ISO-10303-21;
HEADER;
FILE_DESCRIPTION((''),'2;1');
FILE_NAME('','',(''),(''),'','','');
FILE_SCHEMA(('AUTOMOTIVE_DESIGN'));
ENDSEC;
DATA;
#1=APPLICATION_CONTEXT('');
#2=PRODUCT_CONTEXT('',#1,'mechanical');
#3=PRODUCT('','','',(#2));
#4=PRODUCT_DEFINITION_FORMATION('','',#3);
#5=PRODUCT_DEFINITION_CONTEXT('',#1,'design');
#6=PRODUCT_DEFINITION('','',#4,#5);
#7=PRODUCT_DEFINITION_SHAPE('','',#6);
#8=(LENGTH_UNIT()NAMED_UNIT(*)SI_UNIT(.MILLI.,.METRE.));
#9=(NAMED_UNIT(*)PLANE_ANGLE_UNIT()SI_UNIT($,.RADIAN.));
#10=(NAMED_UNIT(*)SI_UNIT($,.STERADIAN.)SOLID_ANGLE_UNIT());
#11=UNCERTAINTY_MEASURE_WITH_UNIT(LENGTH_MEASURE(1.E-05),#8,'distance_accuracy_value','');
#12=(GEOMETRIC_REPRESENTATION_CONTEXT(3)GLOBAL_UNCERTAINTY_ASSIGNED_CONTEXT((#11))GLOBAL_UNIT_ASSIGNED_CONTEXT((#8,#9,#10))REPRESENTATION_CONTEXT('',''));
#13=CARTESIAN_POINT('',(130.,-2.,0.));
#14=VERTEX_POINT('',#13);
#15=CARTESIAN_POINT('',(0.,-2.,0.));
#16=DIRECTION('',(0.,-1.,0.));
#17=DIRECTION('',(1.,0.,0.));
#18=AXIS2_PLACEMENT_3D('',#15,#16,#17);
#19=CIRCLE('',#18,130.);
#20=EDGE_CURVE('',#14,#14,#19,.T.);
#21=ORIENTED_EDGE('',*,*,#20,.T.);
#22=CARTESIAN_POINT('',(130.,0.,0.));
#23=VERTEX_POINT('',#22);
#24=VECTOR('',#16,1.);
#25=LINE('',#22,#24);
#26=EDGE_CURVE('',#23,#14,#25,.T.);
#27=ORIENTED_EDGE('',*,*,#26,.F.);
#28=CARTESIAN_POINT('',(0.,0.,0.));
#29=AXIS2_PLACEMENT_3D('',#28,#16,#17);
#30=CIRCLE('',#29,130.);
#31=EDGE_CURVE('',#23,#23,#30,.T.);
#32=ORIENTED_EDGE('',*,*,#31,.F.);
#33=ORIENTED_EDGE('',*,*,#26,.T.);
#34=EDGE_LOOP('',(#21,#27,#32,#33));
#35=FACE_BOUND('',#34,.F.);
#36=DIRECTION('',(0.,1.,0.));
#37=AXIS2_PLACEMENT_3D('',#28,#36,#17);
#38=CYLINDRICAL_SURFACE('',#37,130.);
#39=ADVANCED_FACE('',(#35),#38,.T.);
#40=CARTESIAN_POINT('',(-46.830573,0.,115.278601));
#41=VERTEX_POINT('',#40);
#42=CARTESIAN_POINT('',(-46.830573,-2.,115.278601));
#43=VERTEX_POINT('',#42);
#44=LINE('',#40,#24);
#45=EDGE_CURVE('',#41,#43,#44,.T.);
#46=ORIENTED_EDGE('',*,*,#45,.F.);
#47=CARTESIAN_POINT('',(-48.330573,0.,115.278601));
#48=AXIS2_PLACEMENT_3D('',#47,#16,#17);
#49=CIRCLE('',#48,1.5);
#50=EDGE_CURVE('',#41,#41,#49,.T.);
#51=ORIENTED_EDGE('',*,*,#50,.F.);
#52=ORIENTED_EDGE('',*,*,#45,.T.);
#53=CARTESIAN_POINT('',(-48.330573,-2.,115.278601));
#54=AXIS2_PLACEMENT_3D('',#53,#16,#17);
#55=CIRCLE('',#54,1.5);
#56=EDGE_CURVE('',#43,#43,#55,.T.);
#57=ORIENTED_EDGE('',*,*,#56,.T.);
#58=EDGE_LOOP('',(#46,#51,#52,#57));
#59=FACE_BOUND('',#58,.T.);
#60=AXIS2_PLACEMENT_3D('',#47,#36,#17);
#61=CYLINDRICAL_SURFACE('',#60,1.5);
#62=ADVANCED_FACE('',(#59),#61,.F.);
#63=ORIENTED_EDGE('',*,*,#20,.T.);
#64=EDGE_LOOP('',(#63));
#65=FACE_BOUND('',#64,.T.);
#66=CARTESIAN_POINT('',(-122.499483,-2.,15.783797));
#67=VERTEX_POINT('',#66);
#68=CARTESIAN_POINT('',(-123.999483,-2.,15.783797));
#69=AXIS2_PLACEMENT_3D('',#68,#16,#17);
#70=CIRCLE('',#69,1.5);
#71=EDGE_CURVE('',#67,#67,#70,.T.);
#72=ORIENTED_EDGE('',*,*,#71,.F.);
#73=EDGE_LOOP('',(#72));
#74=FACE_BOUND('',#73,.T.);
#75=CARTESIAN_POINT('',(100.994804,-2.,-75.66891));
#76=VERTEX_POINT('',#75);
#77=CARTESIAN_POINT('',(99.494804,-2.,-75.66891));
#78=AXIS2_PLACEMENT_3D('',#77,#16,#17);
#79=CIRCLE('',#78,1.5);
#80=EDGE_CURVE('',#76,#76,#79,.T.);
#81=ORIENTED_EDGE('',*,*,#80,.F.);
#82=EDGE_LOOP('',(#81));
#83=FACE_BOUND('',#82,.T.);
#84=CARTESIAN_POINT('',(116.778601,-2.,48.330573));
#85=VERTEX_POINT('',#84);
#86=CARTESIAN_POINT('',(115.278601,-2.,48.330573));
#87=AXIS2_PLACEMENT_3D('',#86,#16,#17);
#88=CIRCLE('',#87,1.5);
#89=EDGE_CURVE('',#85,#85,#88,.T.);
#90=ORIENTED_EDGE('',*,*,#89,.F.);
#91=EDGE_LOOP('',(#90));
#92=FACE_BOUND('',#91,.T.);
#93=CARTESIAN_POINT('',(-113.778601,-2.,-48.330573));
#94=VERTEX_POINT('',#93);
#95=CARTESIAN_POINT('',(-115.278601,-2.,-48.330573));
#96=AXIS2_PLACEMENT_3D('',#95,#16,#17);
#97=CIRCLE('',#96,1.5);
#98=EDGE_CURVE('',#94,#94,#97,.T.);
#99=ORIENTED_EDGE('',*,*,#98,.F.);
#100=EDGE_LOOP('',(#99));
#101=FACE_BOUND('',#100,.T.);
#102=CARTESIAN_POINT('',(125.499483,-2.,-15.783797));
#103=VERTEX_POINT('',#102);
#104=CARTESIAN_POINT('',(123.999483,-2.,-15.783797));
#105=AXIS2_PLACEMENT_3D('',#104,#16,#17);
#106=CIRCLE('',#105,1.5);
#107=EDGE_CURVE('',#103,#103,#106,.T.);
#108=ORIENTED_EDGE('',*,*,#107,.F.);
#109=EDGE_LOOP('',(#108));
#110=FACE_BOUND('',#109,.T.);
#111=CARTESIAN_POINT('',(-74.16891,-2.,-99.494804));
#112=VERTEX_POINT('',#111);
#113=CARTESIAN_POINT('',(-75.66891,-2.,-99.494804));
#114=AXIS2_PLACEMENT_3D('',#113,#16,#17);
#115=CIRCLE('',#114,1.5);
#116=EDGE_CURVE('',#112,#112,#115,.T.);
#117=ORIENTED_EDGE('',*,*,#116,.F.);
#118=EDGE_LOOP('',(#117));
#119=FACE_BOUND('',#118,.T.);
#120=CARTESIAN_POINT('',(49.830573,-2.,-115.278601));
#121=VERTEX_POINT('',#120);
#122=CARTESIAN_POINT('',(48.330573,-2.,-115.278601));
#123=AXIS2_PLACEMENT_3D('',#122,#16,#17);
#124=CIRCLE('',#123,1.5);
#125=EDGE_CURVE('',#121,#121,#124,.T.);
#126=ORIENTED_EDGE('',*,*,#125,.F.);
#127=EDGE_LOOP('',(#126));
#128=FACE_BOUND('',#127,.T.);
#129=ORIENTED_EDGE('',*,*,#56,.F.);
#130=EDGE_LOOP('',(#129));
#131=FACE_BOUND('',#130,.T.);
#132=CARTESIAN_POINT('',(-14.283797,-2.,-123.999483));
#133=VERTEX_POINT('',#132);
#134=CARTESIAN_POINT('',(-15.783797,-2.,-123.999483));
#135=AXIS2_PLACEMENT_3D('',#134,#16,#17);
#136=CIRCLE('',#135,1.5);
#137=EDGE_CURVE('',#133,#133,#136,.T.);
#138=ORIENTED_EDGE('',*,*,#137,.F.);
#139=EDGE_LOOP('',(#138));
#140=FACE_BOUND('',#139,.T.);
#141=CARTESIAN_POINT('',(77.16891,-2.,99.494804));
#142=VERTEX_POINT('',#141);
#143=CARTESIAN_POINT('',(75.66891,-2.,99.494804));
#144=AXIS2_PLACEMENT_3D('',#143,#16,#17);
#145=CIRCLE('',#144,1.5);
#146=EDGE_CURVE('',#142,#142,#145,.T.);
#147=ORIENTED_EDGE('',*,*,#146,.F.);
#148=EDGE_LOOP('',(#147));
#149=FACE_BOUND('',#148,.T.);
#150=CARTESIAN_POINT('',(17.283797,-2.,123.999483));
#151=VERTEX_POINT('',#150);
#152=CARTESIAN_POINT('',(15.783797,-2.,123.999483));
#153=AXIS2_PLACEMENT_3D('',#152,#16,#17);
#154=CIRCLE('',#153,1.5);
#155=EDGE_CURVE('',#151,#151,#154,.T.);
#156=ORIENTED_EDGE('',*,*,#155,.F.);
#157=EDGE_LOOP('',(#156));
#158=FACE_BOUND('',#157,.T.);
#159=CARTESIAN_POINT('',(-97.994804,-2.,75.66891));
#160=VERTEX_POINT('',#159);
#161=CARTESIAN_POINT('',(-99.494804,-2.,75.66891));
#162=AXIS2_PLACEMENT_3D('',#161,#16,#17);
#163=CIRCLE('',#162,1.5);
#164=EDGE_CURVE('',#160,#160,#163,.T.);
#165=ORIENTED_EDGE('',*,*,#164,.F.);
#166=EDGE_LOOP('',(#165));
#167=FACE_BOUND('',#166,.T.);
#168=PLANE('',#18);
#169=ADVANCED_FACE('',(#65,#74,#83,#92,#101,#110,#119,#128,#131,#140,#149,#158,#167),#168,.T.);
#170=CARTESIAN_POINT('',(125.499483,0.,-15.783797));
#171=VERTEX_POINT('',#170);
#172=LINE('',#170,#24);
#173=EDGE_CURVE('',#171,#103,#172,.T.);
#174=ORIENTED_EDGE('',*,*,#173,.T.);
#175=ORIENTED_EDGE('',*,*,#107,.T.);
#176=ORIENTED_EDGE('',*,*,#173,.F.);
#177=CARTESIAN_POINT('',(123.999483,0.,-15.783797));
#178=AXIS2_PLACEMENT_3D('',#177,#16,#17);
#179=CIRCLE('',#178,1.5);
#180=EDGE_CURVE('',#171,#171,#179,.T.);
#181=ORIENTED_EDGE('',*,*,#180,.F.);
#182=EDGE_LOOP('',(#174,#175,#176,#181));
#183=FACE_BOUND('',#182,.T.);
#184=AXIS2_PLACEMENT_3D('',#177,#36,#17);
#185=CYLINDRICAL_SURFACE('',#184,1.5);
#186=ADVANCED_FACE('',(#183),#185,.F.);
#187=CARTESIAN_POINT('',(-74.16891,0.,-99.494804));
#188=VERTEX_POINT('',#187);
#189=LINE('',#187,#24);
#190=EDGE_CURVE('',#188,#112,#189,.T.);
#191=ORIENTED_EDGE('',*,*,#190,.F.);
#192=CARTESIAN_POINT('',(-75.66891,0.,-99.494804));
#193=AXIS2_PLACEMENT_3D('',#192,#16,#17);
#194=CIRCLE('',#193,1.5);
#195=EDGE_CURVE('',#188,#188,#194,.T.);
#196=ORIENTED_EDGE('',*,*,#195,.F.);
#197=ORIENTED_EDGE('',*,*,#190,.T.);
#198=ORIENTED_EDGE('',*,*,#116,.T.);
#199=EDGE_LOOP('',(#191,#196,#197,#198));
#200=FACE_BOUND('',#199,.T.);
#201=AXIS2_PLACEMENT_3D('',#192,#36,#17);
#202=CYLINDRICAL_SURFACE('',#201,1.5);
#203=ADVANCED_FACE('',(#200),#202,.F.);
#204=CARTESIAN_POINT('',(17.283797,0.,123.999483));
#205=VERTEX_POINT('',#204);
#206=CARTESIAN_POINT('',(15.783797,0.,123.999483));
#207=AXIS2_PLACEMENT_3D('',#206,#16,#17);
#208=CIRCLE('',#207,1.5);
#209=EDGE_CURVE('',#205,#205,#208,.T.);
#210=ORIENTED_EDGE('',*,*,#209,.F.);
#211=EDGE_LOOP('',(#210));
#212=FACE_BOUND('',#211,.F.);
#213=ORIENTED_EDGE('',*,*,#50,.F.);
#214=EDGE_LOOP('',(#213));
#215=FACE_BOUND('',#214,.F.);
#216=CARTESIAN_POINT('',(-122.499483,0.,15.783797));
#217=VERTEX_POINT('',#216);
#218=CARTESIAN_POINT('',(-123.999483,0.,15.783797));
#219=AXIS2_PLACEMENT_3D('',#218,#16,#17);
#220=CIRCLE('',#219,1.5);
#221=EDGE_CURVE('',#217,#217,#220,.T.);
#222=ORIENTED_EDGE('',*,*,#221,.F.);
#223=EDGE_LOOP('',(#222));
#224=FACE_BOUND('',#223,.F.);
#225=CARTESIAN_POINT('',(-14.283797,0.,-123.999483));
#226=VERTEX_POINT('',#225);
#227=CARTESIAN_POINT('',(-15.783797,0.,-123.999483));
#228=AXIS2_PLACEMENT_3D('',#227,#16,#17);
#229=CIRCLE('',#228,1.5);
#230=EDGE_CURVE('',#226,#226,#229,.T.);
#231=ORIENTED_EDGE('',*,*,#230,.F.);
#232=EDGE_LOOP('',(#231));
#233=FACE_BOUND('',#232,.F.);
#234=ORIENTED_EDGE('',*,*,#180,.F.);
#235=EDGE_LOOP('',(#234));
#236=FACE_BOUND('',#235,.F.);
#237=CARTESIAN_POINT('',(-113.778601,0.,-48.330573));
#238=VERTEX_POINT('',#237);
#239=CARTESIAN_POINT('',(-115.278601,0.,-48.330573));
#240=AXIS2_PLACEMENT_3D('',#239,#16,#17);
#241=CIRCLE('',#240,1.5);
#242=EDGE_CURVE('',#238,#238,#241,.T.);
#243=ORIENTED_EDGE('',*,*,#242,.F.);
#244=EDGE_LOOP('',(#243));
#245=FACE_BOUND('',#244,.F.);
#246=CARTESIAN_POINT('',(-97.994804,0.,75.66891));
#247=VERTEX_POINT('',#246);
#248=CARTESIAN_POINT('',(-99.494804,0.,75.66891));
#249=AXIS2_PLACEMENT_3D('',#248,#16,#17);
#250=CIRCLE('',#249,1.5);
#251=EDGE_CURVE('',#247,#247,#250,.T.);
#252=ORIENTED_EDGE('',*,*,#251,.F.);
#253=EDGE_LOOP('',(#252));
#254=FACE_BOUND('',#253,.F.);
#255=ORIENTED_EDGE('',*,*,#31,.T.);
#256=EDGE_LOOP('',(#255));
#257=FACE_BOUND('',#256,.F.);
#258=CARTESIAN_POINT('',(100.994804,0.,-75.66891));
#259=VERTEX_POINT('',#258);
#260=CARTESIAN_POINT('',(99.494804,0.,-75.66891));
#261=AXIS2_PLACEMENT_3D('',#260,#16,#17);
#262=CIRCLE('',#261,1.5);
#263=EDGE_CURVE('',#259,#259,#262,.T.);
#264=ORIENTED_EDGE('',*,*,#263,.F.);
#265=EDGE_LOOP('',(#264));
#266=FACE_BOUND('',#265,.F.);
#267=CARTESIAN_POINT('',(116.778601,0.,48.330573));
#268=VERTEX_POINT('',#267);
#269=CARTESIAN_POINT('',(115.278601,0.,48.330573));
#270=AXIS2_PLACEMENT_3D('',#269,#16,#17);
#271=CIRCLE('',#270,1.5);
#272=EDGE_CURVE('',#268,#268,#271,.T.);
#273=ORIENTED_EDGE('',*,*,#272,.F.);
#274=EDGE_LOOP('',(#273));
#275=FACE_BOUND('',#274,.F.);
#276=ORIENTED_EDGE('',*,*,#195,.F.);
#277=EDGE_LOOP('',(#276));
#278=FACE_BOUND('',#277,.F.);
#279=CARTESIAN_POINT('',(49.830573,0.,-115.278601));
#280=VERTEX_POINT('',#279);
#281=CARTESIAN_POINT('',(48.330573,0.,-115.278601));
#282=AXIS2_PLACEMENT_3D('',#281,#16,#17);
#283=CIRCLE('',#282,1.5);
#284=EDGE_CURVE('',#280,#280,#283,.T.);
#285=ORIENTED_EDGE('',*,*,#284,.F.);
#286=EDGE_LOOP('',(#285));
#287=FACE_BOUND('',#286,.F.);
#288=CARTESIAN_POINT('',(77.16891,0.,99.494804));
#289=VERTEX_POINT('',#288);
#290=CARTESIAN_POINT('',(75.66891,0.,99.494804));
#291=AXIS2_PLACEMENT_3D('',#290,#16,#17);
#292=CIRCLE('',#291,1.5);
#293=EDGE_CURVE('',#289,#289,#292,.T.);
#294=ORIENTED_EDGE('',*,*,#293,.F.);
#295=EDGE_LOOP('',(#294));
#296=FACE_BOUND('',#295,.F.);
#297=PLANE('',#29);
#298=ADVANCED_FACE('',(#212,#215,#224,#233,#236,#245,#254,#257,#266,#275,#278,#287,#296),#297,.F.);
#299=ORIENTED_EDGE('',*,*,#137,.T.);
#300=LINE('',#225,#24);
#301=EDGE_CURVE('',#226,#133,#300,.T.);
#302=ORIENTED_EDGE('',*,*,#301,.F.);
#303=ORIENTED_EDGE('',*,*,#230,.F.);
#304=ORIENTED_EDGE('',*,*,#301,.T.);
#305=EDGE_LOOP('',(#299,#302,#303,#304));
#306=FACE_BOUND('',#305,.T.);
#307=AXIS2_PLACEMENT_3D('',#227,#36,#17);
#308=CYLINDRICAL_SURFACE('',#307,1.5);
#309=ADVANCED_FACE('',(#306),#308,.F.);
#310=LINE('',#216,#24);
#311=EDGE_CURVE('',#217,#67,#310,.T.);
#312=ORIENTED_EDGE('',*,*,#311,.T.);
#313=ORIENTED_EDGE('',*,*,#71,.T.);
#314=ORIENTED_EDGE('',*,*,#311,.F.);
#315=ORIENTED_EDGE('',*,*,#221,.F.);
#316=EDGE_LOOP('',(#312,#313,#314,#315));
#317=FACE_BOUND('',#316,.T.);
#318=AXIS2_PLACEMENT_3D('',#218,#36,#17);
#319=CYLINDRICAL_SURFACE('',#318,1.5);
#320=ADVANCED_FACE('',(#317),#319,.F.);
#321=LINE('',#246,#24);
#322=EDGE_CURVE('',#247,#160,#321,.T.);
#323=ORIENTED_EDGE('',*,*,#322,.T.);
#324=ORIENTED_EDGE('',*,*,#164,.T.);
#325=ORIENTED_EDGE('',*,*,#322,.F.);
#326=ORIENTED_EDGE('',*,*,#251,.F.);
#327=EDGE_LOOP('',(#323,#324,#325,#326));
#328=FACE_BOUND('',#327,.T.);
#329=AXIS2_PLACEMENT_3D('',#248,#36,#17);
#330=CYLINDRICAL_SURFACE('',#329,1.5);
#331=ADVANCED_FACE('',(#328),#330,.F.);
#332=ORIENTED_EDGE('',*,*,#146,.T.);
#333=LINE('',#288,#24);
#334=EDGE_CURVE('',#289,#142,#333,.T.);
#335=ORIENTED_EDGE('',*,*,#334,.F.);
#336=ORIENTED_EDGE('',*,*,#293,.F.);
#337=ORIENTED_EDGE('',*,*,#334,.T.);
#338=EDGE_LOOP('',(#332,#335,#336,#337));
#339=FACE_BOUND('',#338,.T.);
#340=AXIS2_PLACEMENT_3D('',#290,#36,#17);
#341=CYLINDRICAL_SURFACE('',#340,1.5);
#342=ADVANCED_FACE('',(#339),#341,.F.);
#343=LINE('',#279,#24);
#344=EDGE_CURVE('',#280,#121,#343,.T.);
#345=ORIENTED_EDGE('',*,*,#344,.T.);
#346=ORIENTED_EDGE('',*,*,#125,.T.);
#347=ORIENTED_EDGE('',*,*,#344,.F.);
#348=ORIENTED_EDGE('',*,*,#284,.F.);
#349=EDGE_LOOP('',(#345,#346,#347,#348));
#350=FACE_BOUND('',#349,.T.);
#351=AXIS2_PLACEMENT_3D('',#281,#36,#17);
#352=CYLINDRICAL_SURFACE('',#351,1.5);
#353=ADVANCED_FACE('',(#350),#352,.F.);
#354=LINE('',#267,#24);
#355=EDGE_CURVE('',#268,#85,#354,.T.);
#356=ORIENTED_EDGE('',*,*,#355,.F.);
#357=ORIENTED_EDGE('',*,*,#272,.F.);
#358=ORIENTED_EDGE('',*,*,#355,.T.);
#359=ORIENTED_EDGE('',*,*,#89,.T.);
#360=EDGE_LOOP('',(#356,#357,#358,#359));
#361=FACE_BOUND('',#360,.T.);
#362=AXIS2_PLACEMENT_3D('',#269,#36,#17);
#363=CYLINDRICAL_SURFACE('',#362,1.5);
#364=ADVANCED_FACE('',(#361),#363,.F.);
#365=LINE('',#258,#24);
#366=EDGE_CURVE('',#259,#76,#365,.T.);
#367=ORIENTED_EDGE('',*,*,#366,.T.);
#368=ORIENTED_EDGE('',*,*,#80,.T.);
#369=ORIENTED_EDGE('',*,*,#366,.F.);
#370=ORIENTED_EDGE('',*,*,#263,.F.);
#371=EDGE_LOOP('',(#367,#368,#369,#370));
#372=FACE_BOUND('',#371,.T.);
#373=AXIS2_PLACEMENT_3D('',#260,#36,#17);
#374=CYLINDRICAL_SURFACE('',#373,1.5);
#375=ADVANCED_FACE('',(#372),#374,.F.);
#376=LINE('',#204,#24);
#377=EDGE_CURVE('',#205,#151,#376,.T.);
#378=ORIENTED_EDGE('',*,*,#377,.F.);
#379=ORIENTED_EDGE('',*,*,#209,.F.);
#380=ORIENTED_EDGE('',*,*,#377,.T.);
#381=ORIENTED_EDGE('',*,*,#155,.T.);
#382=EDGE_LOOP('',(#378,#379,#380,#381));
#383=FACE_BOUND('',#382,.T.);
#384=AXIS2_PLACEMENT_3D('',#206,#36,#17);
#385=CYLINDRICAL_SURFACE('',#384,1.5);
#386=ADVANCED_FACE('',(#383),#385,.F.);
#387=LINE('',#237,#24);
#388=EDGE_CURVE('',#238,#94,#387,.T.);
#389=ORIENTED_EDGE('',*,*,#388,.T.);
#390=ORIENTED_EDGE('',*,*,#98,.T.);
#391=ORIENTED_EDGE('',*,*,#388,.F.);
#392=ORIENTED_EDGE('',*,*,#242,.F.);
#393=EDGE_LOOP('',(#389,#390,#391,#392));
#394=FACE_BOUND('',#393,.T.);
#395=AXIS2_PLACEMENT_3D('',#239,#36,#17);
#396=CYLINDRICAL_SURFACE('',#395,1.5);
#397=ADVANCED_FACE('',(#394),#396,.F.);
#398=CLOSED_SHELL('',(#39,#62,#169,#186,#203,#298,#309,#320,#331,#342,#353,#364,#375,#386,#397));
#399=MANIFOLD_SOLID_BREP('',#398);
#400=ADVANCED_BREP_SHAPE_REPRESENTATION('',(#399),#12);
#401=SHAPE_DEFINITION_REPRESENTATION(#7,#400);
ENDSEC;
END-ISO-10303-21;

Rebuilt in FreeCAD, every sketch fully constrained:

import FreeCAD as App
import Part
import Sketcher

V = App.Vector

doc = App.newDocument("Part")
body = doc.addObject("PartDesign::Body", "Body")

# Sketch on XZ plane
sketch1 = body.newObject("Sketcher::SketchObject", "Sketch")
sketch1.AttachmentSupport = (doc.getObject("XZ_Plane"), [""])
sketch1.MapMode = "FlatFace"
sketch1.addGeometry(Part.Circle(V(0, 0, 0), V(0, 0, 1), 130), False)
sketch1.addGeometry(Part.Circle(V(-75.7, -99.5, 0), V(0, 0, 1), 1.5), False)
sketch1.addGeometry(Part.Circle(V(-15.8, -124, 0), V(0, 0, 1), 1.5), False)
sketch1.addGeometry(Part.Circle(V(-115.3, -48.3, 0), V(0, 0, 1), 1.5), False)
sketch1.addGeometry(Part.Circle(V(48.3, -115.3, 0), V(0, 0, 1), 1.5), False)
sketch1.addGeometry(Part.Circle(V(99.5, -75.7, 0), V(0, 0, 1), 1.5), False)
sketch1.addGeometry(Part.Circle(V(124, -15.8, 0), V(0, 0, 1), 1.5), False)
sketch1.addGeometry(Part.Circle(V(-124, 15.8, 0), V(0, 0, 1), 1.5), False)
sketch1.addGeometry(Part.Circle(V(-99.5, 75.7, 0), V(0, 0, 1), 1.5), False)
sketch1.addGeometry(Part.Circle(V(-48.3, 115.3, 0), V(0, 0, 1), 1.5), False)
sketch1.addGeometry(Part.Circle(V(115.3, 48.3, 0), V(0, 0, 1), 1.5), False)
sketch1.addGeometry(Part.Circle(V(15.8, 124, 0), V(0, 0, 1), 1.5), False)
sketch1.addGeometry(Part.Circle(V(75.7, 99.5, 0), V(0, 0, 1), 1.5), False)
sketch1.addConstraint(Sketcher.Constraint("Coincident", 0, 3, -1, 1))
sketch1.addConstraint(Sketcher.Constraint("Equal", 1, 2))
sketch1.addConstraint(Sketcher.Constraint("Equal", 2, 3))
sketch1.addConstraint(Sketcher.Constraint("Equal", 3, 4))
sketch1.addConstraint(Sketcher.Constraint("Equal", 4, 5))
sketch1.addConstraint(Sketcher.Constraint("Equal", 5, 6))
sketch1.addConstraint(Sketcher.Constraint("Equal", 6, 7))
sketch1.addConstraint(Sketcher.Constraint("Equal", 7, 8))
sketch1.addConstraint(Sketcher.Constraint("Equal", 8, 9))
sketch1.addConstraint(Sketcher.Constraint("Equal", 9, 10))
sketch1.addConstraint(Sketcher.Constraint("Equal", 10, 11))
sketch1.addConstraint(Sketcher.Constraint("Equal", 11, 12))
sketch1.addConstraint(Sketcher.Constraint("Symmetric", 6, 3, 7, 3, -1, 1))
sketch1.addConstraint(Sketcher.Constraint("Symmetric", 5, 3, 8, 3, -1, 1))
sketch1.addConstraint(Sketcher.Constraint("Symmetric", 4, 3, 9, 3, -1, 1))
sketch1.addConstraint(Sketcher.Constraint("Symmetric", 3, 3, 10, 3, -1, 1))
sketch1.addConstraint(Sketcher.Constraint("Symmetric", 2, 3, 11, 3, -1, 1))
sketch1.addConstraint(Sketcher.Constraint("Symmetric", 1, 3, 12, 3, -1, 1))
sketch1.addConstraint(Sketcher.Constraint("Diameter", 0, 260.0))
sketch1.addConstraint(Sketcher.Constraint("Diameter", 1, 3.0))
sketch1.addConstraint(Sketcher.Constraint("DistanceX", 3, 3, -1, 1, 115.278601))
sketch1.addConstraint(Sketcher.Constraint("DistanceY", 4, 3, -1, 1, 115.278601))
sketch1.addConstraint(Sketcher.Constraint("DistanceX", 2, 3, 5, 3, 115.278601))
sketch1.addConstraint(Sketcher.Constraint("DistanceY", 1, 3, 7, 3, 115.278601))
sketch1.addConstraint(Sketcher.Constraint("DistanceY", 4, 3, 7, 3, 131.062398))
sketch1.addConstraint(Sketcher.Constraint("DistanceX", 1, 3, -1, 1, 75.66891))
sketch1.addConstraint(Sketcher.Constraint("DistanceY", 5, 3, -1, 1, 75.66891))
sketch1.addConstraint(Sketcher.Constraint("DistanceY", 2, 3, 1, 3, 24.504679))
sketch1.addConstraint(Sketcher.Constraint("DistanceY", 1, 3, 3, 3, 51.164231))
sketch1.addConstraint(Sketcher.Constraint("DistanceX", 2, 3, 4, 3, 64.11437))
sketch1.addConstraint(Sketcher.Constraint("DistanceX", 5, 3, 6, 3, 24.504679))
sketch1.addConstraint(Sketcher.Constraint("DistanceX", 2, 3, -1, 1, 15.783797))
pad1 = body.newObject("PartDesign::Pad", "Pad")
pad1.Profile = sketch1
pad1.Length = 2

doc.recompute()
